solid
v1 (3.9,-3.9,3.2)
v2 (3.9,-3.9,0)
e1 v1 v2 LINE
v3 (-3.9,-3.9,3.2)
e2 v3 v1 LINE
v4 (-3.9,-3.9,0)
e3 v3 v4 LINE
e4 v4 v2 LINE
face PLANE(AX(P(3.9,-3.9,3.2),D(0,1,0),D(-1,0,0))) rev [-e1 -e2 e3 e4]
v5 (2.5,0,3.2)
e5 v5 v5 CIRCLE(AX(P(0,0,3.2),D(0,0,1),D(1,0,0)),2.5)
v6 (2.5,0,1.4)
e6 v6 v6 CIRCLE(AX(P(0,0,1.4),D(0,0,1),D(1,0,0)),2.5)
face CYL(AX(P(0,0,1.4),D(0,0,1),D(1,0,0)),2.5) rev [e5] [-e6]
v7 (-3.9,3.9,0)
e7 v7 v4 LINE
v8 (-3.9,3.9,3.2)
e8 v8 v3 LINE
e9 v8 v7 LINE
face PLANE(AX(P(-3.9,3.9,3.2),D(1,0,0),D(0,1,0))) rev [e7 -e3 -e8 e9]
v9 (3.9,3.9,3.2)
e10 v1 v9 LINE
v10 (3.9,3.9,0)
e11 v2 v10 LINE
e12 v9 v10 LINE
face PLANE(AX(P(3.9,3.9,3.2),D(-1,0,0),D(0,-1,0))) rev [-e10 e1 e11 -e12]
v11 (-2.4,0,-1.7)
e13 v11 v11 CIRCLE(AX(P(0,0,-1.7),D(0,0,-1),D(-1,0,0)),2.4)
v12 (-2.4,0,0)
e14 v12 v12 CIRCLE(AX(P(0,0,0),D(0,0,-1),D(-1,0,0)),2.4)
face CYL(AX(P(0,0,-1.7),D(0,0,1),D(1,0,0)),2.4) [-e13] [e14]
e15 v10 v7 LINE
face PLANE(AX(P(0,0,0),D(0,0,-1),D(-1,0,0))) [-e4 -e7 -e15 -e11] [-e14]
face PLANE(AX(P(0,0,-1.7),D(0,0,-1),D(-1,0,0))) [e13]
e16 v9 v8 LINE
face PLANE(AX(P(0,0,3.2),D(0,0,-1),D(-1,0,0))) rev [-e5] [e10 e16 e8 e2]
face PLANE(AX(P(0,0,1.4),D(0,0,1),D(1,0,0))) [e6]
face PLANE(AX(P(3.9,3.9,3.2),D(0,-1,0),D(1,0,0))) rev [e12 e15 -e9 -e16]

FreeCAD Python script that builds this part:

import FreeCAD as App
import Part
import Sketcher

V = App.Vector

doc = App.newDocument("Part")
body = doc.addObject("PartDesign::Body", "Body")

sketch1 = doc.addObject("Sketcher::SketchObject", "Sketch")
body.addObject(sketch1)
sketch1.AttachmentSupport = (doc.XY_Plane, [""])
sketch1.MapMode = "FlatFace"
sketch1.addGeometry([
    Part.LineSegment(V(-4, 4, 0), V(-4, -4, 0)),
    Part.LineSegment(V(-4, -4, 0), V(4, -4, 0)),
    Part.LineSegment(V(4, -4, 0), V(4, 4, 0)),
    Part.LineSegment(V(4, 4, 0), V(-4, 4, 0)),
], False)
sketch1.addConstraint([
    Sketcher.Constraint("Coincident", 0, 2, 1, 1),
    Sketcher.Constraint("Coincident", 1, 2, 2, 1),
    Sketcher.Constraint("Coincident", 2, 2, 3, 1),
    Sketcher.Constraint("Coincident", 3, 2, 0, 1),
    Sketcher.Constraint("Vertical", 0),
    Sketcher.Constraint("Horizontal", 1),
    Sketcher.Constraint("Vertical", 2),
    Sketcher.Constraint("Horizontal", 3),
    Sketcher.Constraint("Symmetric", 0, 2, 2, 2, -1, 1),
    Sketcher.Constraint("Equal", 3, 0),
    Sketcher.Constraint("DistanceX", 1, 1, 1, 2, 7.8),
])
pad1 = doc.addObject("PartDesign::Pad", "Pad")
body.addObject(pad1)
pad1.Profile = sketch1
pad1.Length = 3.2

sketch2 = doc.addObject("Sketcher::SketchObject", "Sketch001")
body.addObject(sketch2)
sketch2.AttachmentSupport = (doc.XY_Plane, [""])
sketch2.MapMode = "FlatFace"
sketch2.AttachmentOffset = App.Placement(V(0, 0, 3.2), App.Rotation())
sketch2.addGeometry(Part.Circle(V(0, 0, 0), V(0, 0, 1), 2.5), False)
sketch2.addConstraint([
    Sketcher.Constraint("Coincident", 0, 3, -1, 1),
    Sketcher.Constraint("Diameter", 0, 5.0),
])
pocket1 = doc.addObject("PartDesign::Pocket", "Pocket")
body.addObject(pocket1)
pocket1.Profile = sketch2
pocket1.Length = 1.8

sketch3 = doc.addObject("Sketcher::SketchObject", "Sketch002")
body.addObject(sketch3)
sketch3.AttachmentSupport = (doc.XY_Plane, [""])
sketch3.MapMode = "FlatFace"
sketch3.addGeometry(Part.Circle(V(0, 0, 0), V(0, 0, 1), 2.4), False)
sketch3.addConstraint([
    Sketcher.Constraint("Coincident", 0, 3, -1, 1),
    Sketcher.Constraint("Diameter", 0, 4.8),
])
pad2 = doc.addObject("PartDesign::Pad", "Pad001")
body.addObject(pad2)
pad2.Profile = sketch3
pad2.Length = 1.7
pad2.Reversed = True

doc.recompute()
